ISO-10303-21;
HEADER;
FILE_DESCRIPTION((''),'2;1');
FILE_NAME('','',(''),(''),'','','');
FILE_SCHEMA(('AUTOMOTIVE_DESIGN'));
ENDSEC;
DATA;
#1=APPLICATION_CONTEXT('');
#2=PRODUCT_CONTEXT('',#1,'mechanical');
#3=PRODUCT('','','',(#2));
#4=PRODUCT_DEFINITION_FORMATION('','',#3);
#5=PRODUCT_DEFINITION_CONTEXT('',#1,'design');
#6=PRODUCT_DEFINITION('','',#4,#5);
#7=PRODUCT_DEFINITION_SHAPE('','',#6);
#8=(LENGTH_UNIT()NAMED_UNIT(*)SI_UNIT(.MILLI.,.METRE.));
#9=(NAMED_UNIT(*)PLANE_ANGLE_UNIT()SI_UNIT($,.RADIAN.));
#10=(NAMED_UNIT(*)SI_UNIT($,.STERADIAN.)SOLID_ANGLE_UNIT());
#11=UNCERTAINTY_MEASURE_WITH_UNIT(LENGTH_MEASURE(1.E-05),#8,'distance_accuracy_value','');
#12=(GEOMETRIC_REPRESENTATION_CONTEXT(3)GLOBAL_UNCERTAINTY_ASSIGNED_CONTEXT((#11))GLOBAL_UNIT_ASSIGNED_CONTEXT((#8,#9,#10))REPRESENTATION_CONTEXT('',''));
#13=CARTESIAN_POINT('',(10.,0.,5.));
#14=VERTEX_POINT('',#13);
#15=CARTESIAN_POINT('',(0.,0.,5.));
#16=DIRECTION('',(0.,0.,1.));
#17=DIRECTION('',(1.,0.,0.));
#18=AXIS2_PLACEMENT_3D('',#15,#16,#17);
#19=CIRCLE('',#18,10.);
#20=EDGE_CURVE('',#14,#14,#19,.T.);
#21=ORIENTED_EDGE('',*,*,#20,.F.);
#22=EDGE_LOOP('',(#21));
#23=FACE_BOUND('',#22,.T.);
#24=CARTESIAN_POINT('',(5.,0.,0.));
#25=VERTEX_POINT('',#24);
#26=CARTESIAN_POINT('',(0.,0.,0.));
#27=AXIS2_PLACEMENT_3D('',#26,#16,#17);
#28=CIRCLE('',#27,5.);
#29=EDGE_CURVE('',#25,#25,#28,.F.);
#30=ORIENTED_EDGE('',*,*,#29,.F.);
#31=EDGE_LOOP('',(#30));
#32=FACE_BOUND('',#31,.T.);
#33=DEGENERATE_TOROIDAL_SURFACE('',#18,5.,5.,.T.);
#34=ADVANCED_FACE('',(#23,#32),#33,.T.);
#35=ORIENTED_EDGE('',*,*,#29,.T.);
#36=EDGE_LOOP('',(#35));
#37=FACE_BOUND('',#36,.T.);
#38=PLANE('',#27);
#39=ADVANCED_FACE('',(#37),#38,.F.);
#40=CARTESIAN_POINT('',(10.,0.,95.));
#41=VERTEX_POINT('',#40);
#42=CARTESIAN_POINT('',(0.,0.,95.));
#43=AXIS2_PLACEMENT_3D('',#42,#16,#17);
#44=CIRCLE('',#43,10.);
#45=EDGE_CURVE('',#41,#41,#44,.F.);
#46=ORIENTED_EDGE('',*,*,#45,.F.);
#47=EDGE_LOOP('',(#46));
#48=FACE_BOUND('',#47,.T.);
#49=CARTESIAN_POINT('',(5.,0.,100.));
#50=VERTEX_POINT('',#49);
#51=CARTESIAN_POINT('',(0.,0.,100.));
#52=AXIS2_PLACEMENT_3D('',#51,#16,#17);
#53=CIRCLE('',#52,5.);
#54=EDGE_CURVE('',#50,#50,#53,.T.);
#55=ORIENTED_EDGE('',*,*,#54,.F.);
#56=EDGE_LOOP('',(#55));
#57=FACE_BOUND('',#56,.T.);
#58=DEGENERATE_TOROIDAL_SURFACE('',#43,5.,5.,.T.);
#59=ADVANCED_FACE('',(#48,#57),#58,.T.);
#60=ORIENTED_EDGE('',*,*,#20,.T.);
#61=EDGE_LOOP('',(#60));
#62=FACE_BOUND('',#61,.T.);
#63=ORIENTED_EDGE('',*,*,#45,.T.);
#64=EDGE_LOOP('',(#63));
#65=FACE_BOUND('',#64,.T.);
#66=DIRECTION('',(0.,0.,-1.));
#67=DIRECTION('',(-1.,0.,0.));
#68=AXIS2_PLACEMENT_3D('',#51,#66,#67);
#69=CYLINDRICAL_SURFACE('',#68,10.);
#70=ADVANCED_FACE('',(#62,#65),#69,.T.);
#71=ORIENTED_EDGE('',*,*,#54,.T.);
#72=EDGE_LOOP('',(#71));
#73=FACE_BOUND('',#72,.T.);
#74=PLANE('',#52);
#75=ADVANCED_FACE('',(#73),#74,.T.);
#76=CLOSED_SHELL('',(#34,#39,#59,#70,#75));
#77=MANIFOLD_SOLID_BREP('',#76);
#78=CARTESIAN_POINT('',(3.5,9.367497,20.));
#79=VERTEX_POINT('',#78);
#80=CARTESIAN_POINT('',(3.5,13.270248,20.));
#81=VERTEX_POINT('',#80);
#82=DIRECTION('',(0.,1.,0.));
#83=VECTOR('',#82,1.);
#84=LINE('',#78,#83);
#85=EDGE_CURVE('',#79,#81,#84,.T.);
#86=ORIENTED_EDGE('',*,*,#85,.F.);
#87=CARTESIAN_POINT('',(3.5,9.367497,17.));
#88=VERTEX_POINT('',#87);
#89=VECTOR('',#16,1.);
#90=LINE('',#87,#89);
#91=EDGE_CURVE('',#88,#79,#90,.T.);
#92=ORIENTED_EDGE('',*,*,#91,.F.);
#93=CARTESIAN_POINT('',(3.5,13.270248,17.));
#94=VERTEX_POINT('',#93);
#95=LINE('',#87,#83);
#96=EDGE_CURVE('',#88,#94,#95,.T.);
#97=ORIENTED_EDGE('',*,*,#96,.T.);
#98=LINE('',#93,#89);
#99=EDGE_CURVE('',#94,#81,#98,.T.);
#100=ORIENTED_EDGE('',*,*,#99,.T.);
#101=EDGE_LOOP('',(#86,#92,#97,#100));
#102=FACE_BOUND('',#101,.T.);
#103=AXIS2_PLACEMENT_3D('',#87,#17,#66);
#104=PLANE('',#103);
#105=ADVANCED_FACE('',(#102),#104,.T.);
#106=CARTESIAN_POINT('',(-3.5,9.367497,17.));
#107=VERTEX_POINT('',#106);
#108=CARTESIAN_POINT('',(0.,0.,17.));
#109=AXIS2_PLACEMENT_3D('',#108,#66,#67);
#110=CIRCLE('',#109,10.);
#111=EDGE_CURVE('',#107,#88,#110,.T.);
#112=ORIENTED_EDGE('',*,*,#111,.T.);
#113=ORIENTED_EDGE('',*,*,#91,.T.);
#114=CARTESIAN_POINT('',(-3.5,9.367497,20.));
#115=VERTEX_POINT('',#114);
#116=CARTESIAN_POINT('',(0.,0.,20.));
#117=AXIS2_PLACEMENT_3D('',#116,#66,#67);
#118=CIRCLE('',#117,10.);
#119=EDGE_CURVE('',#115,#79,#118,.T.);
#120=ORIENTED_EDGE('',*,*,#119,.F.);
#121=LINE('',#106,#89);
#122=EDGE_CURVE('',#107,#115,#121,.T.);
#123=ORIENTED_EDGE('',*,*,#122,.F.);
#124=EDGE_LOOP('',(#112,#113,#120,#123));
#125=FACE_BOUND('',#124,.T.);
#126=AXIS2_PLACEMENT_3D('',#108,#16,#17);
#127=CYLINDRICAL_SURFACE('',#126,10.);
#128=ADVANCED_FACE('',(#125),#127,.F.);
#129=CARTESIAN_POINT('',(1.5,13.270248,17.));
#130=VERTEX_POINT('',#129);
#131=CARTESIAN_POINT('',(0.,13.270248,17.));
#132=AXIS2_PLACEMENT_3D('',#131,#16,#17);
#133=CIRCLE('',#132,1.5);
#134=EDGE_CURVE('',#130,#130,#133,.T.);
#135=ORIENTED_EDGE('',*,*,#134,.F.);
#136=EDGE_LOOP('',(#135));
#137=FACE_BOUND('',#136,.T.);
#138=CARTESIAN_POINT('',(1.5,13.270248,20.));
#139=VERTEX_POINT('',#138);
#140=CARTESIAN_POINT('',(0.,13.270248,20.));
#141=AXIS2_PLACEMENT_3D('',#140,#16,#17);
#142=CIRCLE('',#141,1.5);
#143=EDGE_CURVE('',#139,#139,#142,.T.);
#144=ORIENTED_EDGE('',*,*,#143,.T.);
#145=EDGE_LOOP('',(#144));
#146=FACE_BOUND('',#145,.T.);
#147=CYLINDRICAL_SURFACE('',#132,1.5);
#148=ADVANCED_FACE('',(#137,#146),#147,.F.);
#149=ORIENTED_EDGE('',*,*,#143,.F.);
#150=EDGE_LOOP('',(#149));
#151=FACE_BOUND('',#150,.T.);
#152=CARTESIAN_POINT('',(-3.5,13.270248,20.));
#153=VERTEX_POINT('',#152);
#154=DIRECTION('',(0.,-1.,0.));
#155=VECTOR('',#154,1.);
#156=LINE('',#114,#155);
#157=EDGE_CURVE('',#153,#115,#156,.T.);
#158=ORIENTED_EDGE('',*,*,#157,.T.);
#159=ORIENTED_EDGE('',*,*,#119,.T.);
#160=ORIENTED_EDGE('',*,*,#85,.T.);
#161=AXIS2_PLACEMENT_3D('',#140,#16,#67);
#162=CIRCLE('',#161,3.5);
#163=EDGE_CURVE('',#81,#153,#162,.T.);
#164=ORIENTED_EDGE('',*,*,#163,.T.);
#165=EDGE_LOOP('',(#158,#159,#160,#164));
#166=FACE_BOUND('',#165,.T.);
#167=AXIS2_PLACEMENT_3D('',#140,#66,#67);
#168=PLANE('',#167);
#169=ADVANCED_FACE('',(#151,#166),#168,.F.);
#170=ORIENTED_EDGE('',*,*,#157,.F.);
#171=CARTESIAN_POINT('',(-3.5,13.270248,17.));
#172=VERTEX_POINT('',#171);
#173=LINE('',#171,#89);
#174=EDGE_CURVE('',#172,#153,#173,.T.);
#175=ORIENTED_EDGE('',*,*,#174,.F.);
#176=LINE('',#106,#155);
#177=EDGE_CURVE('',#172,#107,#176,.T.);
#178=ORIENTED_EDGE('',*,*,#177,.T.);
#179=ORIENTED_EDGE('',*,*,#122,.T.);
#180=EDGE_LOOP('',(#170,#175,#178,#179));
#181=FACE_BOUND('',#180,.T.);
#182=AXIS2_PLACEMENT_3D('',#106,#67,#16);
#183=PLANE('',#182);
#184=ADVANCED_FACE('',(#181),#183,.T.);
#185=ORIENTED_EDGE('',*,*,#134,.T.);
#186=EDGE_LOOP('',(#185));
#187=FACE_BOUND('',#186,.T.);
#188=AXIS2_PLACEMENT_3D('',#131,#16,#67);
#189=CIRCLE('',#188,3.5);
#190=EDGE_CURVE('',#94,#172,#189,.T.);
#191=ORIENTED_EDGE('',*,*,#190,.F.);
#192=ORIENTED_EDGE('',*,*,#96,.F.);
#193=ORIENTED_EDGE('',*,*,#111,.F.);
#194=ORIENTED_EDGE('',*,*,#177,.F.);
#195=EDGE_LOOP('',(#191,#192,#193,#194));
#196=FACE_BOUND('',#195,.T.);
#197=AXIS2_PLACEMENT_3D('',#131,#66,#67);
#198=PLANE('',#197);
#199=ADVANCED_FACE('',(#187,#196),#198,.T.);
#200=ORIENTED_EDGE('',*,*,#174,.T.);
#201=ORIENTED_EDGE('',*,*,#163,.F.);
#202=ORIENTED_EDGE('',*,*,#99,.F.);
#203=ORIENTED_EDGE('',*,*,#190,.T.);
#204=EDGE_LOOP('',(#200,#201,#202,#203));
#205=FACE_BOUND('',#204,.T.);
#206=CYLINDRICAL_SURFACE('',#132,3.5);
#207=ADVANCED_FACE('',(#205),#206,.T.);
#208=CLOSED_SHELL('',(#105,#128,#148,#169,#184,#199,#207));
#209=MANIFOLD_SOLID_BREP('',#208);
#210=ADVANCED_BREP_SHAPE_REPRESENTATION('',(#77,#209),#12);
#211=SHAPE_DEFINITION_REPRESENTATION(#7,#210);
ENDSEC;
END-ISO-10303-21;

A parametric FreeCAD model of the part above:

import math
import FreeCAD as App
import Part
import Sketcher
Q = App.Units.Quantity


def edges_at(feature, points):
    """Names of the edges that pass closest to the given points."""
    edges = feature.Shape.Edges
    near = lambda p: min(range(len(edges)), key=lambda i: edges[i].distToShape(Part.Vertex(*p))[0])
    return sorted({f"Edge{near(p) + 1}" for p in points})

doc = App.newDocument("Part")
body = doc.addObject("PartDesign::Body", "Body")

sketch1 = doc.addObject("Sketcher::SketchObject", "Sketch")
body.addObject(sketch1)
sketch1.AttachmentSupport = (doc.XY_Plane, [""])
sketch1.MapMode = "FlatFace"
sketch1.addGeometry(Part.Circle(App.Vector(0, 0, 0), App.Vector(0, 0, 1), 10), False)
sketch1.addConstraint([
    Sketcher.Constraint("Coincident", 0, 3, -1, 1),
    Sketcher.Constraint("Diameter", 0, Q("20 mm")),
])
pad1 = doc.addObject("PartDesign::Pad", "Pad")
body.addObject(pad1)
pad1.Profile = sketch1
pad1.Length = 100
doc.recompute()

fillet = doc.addObject("PartDesign::Fillet", "Fillet")
body.addObject(fillet)
fillet.Base = (pad1, edges_at(pad1, [(-10, 0, 0), (-10, 0, 100)]))
fillet.Radius = 5
body2 = doc.addObject("PartDesign::Body", "Body001")

sketch2 = doc.addObject("Sketcher::SketchObject", "Sketch001")
body2.addObject(sketch2)
sketch2.AttachmentSupport = (doc.getObject("XY_Plane001"), [""])
sketch2.MapMode = "FlatFace"
sketch2.AttachmentOffset = App.Placement(App.Vector(0, 0, 20), App.Rotation())
sketch2.addGeometry([
    Part.LineSegment(App.Vector(3.5, 9.4, 0), App.Vector(3.5, 13.3, 0)),
    Part.ArcOfCircle(Part.Circle(App.Vector(0, 13.3, 0), App.Vector(0, 0, 1), 3.5), math.radians(0), math.radians(180)),
    Part.LineSegment(App.Vector(-3.5, 13.3, 0), App.Vector(-3.5, 9.4, 0)),
    Part.ArcOfCircle(Part.Circle(App.Vector(0, 0, 0), App.Vector(0, 0, 1), 10), math.radians(70), math.radians(110)),
    Part.Circle(App.Vector(0, 13.3, 0), App.Vector(0, 0, 1), 1.5),
], False)
sketch2.addConstraint([
    Sketcher.Constraint("Tangent", 0, 2, 1, 1),
    Sketcher.Constraint("Tangent", 1, 2, 2, 1),
    Sketcher.Constraint("Coincident", 2, 2, 3, 2),
    Sketcher.Constraint("Coincident", 3, 1, 0, 1),
    Sketcher.Constraint("Vertical", 0),
    Sketcher.Constraint("Vertical", 2),
    Sketcher.Constraint("Coincident", 3, 3, -1, 1),
    Sketcher.Constraint("Coincident", 4, 3, 1, 3),
    Sketcher.Constraint("PointOnObject", 1, 3, -2),
    Sketcher.Constraint("Diameter", 4, Q("3 mm")),
    Sketcher.Constraint("Radius", 3, Q("10 mm")),
    Sketcher.Constraint("Radius", 1, Q("3.5 mm")),
    Sketcher.Constraint("DistanceY", 0, 1, 0, 2, Q("3.902751 mm")),
])
pad2 = doc.addObject("PartDesign::Pad", "Pad001")
body2.addObject(pad2)
pad2.Profile = sketch2
pad2.Length = 3
pad2.Reversed = True

doc.recompute()
